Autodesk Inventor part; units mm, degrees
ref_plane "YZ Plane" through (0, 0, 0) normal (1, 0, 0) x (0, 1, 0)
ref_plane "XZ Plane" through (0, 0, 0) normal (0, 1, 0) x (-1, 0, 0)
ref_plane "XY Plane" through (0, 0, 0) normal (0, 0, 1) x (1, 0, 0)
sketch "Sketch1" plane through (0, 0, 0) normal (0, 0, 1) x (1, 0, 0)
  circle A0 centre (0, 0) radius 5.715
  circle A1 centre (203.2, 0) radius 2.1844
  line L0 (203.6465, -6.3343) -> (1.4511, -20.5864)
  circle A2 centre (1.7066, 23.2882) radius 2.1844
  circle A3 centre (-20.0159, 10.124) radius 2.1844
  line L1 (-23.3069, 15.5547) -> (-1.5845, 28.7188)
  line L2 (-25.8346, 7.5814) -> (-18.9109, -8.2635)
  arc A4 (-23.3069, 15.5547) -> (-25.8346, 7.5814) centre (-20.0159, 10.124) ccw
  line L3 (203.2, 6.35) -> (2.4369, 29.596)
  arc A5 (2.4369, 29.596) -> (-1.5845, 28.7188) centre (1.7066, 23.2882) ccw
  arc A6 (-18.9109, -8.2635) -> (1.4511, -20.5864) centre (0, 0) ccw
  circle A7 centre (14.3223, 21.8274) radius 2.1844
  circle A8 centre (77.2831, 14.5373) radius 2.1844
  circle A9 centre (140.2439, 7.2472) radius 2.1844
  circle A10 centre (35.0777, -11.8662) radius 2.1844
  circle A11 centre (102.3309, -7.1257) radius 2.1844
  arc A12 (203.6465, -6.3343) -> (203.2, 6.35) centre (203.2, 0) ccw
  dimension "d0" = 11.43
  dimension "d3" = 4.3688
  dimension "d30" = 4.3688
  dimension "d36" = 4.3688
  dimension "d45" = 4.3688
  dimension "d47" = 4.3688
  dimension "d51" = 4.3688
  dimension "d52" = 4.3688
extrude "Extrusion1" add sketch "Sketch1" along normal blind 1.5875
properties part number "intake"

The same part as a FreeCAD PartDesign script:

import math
import FreeCAD as App
import Part
import Sketcher
from FreeCAD import Vector
Q = App.Units.Quantity

doc = App.newDocument("Part")
body = doc.addObject("PartDesign::Body", "Body")

sketch1 = body.newObject("Sketcher::SketchObject", "Sketch")
sketch1.AttachmentSupport = (doc.getObject("XY_Plane"), [""])
sketch1.MapMode = "FlatFace"
sketch1.addGeometry([
    Part.LineSegment(Vector(1.4511, -20.5864, 0), Vector(203.6465, -6.3343, 0)),
    Part.ArcOfCircle(Part.Circle(Vector(203.2, 0, 0), Vector(0, 0, 1), 6.350017), math.radians(-85.967933), math.radians(90)),
    Part.LineSegment(Vector(203.2, 6.35, 0), Vector(2.4369, 29.596, 0)),
    Part.ArcOfCircle(Part.Circle(Vector(1.7066, 23.2882, 0), Vector(0, 0, 1), 6.349935), math.radians(83.395853), math.radians(121.21707)),
    Part.LineSegment(Vector(-1.5845, 28.7188, 0), Vector(-23.3069, 15.5547, 0)),
    Part.ArcOfCircle(Part.Circle(Vector(-20.0159, 10.124, 0), Vector(0, 0, 1), 6.350054), math.radians(121.215831), math.radians(203.603907)),
    Part.LineSegment(Vector(-25.8346, 7.5814, 0), Vector(-18.9109, -8.2635, 0)),
    Part.ArcOfCircle(Part.Circle(Vector(0, 0, 0), Vector(0, 0, 1), 20.637528), math.radians(-156.396105), math.radians(-85.967988)),
    Part.Circle(Vector(35.0777, -11.8662, 0), Vector(0, 0, 1), 2.1844),
    Part.Circle(Vector(0, 0, 0), Vector(0, 0, 1), 5.715),
    Part.Circle(Vector(102.3309, -7.1257, 0), Vector(0, 0, 1), 2.1844),
    Part.Circle(Vector(203.2, 0, 0), Vector(0, 0, 1), 2.1844),
    Part.Circle(Vector(-20.0159, 10.124, 0), Vector(0, 0, 1), 2.1844),
    Part.Circle(Vector(77.2831, 14.5373, 0), Vector(0, 0, 1), 2.1844),
    Part.Circle(Vector(1.7066, 23.2882, 0), Vector(0, 0, 1), 2.1844),
    Part.Circle(Vector(14.3223, 21.8274, 0), Vector(0, 0, 1), 2.1844),
    Part.Circle(Vector(140.2439, 7.2472, 0), Vector(0, 0, 1), 2.1844),
], False)
sketch1.addConstraint([
    Sketcher.Constraint("Tangent", 0, 2, 1, 1),
    Sketcher.Constraint("Coincident", 1, 2, 2, 1),
    Sketcher.Constraint("Tangent", 2, 2, 3, 1),
    Sketcher.Constraint("Tangent", 3, 2, 4, 1),
    Sketcher.Constraint("Tangent", 4, 2, 5, 1),
    Sketcher.Constraint("Tangent", 5, 2, 6, 1),
    Sketcher.Constraint("Tangent", 6, 2, 7, 1),
    Sketcher.Constraint("Tangent", 7, 2, 0, 1),
    Sketcher.Constraint("Coincident", 7, 3, -1, 1),
    Sketcher.Constraint("Coincident", 9, 3, -1, 1),
    Sketcher.Constraint("Coincident", 11, 3, 1, 3),
    Sketcher.Constraint("Coincident", 12, 3, 5, 3),
    Sketcher.Constraint("Coincident", 14, 3, 3, 3),
    Sketcher.Constraint("Equal", 1, 3),
    Sketcher.Constraint("Equal", 3, 5),
    Sketcher.Constraint("Equal", 8, 10),
    Sketcher.Constraint("Equal", 10, 11),
    Sketcher.Constraint("Equal", 11, 12),
    Sketcher.Constraint("Equal", 12, 13),
    Sketcher.Constraint("Equal", 13, 14),
    Sketcher.Constraint("Equal", 14, 15),
    Sketcher.Constraint("Equal", 15, 16),
    Sketcher.Constraint("PointOnObject", 1, 3, -1),
    Sketcher.Constraint("Vertical", 11, 3, 1, 2),
    Sketcher.Constraint("Diameter", 9, Q("0.45 in")),
    Sketcher.Constraint("Diameter", 8, Q("0.172 in")),
    Sketcher.Constraint("Radius", 1, Q("0.25 in")),
    Sketcher.Constraint("Distance", 4, Q("1 in")),
    Sketcher.Constraint("DistanceX", -1, 1, 1, 3, Q("8 in")),
    Sketcher.Constraint("Radius", 7, Q("0.8125 in")),
    Sketcher.Constraint("DistanceX", -1, 1, 8, 3, Q("1.381 in")),
    Sketcher.Constraint("DistanceY", 16, 3, 13, 3, Q("0.287 in")),
    Sketcher.Constraint("DistanceX", -1, 1, 3, 3, Q("0.0672 in")),
    Sketcher.Constraint("DistanceY", -1, 1, 2, 2, Q("1.1652 in")),
    Sketcher.Constraint("DistanceX", 4, 2, -1, 1, Q("0.9176 in")),
    Sketcher.Constraint("DistanceY", 10, 3, 3, 3, Q("1.1974 in")),
    Sketcher.Constraint("DistanceY", 8, 3, 13, 3, Q("1.0395 in")),
    Sketcher.Constraint("DistanceY", 15, 3, 3, 3, Q("0.0575 in")),
    Sketcher.Constraint("DistanceX", 5, 3, 15, 3, Q("1.3519 in")),
    Sketcher.Constraint("DistanceX", 8, 3, 16, 3, Q("4.1404 in")),
    Sketcher.Constraint("DistanceY", 0, 2, 16, 3, Q("0.5347 in")),
    Sketcher.Constraint("DistanceX", 10, 3, 0, 2, Q("3.9888 in")),
    Sketcher.Constraint("DistanceX", -1, 1, 13, 3, 77.283),
])
pad1 = body.newObject("PartDesign::Pad", "Pad")
pad1.Profile = sketch1
pad1.Length = Q("0.0625 in")

doc.recompute()
